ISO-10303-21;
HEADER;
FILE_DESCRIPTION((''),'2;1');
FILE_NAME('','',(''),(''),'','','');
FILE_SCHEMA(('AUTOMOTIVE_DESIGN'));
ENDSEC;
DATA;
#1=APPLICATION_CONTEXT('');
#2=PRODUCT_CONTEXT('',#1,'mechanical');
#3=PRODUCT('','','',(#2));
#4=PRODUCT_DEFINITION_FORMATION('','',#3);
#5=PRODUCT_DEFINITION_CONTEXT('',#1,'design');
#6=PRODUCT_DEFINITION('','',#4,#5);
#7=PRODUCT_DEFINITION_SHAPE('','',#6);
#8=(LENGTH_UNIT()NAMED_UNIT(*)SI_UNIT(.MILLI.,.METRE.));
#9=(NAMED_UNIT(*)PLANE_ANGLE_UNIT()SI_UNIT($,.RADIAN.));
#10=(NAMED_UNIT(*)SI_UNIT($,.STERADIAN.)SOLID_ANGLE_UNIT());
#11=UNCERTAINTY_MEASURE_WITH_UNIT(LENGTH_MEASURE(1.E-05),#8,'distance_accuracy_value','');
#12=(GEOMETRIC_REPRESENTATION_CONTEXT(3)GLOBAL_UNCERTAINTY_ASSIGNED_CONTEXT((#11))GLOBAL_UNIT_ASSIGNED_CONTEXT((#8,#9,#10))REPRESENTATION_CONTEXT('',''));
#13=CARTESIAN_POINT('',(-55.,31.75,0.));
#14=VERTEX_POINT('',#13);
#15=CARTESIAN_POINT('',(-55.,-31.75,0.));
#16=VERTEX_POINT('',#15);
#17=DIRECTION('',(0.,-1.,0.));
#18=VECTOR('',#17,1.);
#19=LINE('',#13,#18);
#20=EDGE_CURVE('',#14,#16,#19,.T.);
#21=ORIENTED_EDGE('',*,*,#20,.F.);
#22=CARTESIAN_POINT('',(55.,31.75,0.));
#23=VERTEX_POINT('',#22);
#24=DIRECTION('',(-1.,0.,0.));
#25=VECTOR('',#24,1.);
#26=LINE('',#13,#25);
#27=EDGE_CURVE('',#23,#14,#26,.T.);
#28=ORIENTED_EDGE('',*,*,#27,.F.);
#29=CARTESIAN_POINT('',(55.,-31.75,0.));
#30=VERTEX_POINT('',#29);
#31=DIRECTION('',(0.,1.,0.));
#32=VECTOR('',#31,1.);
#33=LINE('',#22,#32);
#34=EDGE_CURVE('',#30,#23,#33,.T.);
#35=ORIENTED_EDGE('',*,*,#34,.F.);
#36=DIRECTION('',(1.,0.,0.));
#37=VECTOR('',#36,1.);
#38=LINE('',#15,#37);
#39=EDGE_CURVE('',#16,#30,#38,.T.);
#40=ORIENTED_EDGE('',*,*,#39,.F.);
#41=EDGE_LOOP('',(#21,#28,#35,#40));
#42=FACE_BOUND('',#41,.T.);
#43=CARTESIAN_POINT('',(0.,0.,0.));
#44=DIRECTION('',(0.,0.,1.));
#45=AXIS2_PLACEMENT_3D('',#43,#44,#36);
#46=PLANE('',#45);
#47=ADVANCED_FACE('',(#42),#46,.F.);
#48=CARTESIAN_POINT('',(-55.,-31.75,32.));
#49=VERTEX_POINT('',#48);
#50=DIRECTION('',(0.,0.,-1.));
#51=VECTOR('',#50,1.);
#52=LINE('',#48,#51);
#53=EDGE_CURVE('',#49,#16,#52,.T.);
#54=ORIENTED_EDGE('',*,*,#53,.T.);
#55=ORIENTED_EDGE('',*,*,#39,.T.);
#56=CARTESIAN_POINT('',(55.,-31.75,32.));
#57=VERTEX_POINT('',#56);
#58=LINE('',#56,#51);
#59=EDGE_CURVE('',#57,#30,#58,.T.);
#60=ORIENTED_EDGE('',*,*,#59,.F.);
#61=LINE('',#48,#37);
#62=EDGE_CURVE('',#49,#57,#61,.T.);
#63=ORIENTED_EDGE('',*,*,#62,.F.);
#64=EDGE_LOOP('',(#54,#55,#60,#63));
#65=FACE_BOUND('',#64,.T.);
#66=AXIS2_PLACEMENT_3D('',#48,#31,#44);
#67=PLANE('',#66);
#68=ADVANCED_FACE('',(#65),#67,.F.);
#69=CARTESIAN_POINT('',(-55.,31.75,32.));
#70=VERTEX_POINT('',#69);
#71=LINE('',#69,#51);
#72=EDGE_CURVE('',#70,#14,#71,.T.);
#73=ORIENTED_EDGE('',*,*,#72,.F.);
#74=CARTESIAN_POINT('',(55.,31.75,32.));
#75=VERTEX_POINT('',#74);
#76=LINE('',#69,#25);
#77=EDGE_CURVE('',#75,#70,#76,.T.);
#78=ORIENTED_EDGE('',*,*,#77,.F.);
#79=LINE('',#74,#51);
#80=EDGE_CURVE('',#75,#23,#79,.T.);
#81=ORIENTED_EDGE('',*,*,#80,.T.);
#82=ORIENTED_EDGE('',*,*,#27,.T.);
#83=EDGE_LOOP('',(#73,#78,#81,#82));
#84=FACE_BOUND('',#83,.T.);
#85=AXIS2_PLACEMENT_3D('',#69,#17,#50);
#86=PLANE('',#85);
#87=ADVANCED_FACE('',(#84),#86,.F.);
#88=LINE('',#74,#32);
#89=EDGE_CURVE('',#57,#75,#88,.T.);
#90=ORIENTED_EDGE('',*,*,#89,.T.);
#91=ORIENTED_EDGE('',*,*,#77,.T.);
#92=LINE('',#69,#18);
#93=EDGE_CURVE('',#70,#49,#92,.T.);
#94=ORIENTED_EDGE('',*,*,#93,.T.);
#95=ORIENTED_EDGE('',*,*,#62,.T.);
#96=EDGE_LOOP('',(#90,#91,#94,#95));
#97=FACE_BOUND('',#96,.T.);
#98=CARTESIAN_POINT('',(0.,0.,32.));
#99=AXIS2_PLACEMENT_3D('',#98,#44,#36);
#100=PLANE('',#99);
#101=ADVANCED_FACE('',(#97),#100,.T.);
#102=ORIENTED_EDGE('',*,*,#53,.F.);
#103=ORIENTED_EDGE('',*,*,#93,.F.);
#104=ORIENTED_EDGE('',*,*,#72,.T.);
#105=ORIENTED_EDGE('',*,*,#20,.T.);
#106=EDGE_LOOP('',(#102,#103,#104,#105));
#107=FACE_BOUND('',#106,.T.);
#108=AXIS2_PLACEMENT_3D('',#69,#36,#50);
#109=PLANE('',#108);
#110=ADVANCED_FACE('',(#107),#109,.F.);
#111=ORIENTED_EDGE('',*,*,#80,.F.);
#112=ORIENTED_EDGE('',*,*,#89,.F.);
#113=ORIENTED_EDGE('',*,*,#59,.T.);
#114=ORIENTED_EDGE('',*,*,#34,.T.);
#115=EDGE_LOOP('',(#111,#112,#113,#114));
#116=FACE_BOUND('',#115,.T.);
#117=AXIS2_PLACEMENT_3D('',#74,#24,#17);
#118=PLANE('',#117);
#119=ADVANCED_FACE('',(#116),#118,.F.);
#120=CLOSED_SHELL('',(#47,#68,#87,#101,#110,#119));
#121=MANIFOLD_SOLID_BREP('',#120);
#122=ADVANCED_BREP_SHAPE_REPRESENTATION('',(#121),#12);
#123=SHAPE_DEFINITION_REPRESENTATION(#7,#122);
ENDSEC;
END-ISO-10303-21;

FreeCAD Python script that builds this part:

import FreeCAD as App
import Part
import Sketcher
from FreeCAD import Vector
Q = App.Units.Quantity


def add_polygon(sketch, points):
    """Adds a closed chain of lines whose ends are joined by coincident constraints."""
    first, n = sketch.GeometryCount, len(points)
    for a, b in zip(points, points[1:] + points[:1]):
        sketch.addGeometry(Part.LineSegment(App.Vector(*a, 0), App.Vector(*b, 0)), False)
    for i in range(n):
        sketch.addConstraint(Sketcher.Constraint("Coincident", first + i, 2, first + (i + 1) % n, 1))

doc = App.newDocument("Part")
body = doc.addObject("PartDesign::Body", "Body")

sketch1 = body.newObject("Sketcher::SketchObject", "Sketch")
sketch1.AttachmentSupport = (doc.getObject("XY_Plane"), [""])
sketch1.MapMode = "FlatFace"
add_polygon(sketch1, [(-55, 31.75), (-55, -31.75), (55, -31.75), (55, 31.75)])
sketch1.addConstraint([
    Sketcher.Constraint("Vertical", 0),
    Sketcher.Constraint("Horizontal", 1),
    Sketcher.Constraint("Vertical", 2),
    Sketcher.Constraint("Horizontal", 3),
    Sketcher.Constraint("Symmetric", 0, 2, 2, 2, -1, 1),
    Sketcher.Constraint("DistanceX", 1, 1, 1, 2, Q("110 mm")),
    Sketcher.Constraint("DistanceY", 0, 2, 0, 1, Q("63.5 mm")),
])
pad1 = body.newObject("PartDesign::Pad", "Pad")
pad1.Profile = sketch1
pad1.Length = 32

doc.recompute()
